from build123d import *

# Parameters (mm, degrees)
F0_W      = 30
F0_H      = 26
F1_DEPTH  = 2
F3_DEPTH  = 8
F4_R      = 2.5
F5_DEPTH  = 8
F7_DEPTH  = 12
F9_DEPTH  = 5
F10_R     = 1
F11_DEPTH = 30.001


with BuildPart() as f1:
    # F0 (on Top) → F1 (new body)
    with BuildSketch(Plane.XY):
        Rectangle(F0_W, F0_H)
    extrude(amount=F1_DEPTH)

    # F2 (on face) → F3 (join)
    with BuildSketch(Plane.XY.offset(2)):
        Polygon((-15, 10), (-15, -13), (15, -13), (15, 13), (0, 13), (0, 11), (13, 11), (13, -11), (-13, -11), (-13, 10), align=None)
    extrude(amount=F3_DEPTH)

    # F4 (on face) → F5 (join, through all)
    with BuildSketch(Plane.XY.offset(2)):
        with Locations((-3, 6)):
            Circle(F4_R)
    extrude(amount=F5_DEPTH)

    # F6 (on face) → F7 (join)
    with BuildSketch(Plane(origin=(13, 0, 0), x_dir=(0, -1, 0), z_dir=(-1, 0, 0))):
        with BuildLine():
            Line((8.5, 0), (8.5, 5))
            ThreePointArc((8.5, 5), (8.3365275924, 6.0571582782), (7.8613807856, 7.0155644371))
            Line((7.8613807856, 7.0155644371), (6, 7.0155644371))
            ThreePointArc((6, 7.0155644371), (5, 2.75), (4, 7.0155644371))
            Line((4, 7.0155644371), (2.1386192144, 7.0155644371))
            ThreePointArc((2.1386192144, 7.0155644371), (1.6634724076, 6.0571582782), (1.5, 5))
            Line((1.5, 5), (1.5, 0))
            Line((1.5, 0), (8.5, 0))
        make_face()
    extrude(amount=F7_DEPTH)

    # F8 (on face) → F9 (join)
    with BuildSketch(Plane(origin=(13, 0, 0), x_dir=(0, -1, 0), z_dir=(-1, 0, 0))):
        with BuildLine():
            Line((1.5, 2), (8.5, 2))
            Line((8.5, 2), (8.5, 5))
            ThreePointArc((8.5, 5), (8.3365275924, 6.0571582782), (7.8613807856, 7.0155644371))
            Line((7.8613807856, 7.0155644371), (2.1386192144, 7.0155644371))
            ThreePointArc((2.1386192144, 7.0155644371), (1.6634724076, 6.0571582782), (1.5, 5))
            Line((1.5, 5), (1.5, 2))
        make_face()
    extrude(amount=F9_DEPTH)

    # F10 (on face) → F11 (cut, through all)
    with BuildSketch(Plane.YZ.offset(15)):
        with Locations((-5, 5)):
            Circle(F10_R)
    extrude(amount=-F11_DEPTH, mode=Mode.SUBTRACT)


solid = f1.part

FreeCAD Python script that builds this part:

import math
import FreeCAD as App
import Part
import Sketcher
Q = App.Units.Quantity


def add_polygon(sketch, points):
    """Adds a closed chain of lines whose ends are joined by coincident constraints."""
    first, n = sketch.GeometryCount, len(points)
    for a, b in zip(points, points[1:] + points[:1]):
        sketch.addGeometry(Part.LineSegment(App.Vector(*a, 0), App.Vector(*b, 0)), False)
    for i in range(n):
        sketch.addConstraint(Sketcher.Constraint("Coincident", first + i, 2, first + (i + 1) % n, 1))

doc = App.newDocument("Part")
body = doc.addObject("PartDesign::Body", "Body")

sketch1 = doc.addObject("Sketcher::SketchObject", "Sketch")
body.addObject(sketch1)
sketch1.AttachmentSupport = (doc.XY_Plane, [""])
sketch1.MapMode = "FlatFace"
add_polygon(sketch1, [(-15, 13), (-15, -13), (15, -13), (15, 13)])
sketch1.addConstraint([
    Sketcher.Constraint("Vertical", 0),
    Sketcher.Constraint("Horizontal", 1),
    Sketcher.Constraint("Vertical", 2),
    Sketcher.Constraint("Horizontal", 3),
    Sketcher.Constraint("Symmetric", 0, 2, 2, 2, -1, 1),
    Sketcher.Constraint("DistanceX", 1, 1, 1, 2, Q("30 mm")),
    Sketcher.Constraint("DistanceY", 0, 2, 0, 1, Q("26 mm")),
])
pad1 = doc.addObject("PartDesign::Pad", "Pad")
body.addObject(pad1)
pad1.Profile = sketch1
pad1.Length = 2

sketch2 = doc.addObject("Sketcher::SketchObject", "Sketch001")
body.addObject(sketch2)
sketch2.AttachmentSupport = (doc.XY_Plane, [""])
sketch2.MapMode = "FlatFace"
sketch2.AttachmentOffset = App.Placement(App.Vector(0, 0, 2), App.Rotation())
add_polygon(sketch2, [(-15, 10), (-15, -13), (15, -13), (15, 13), (0, 13), (0, 11), (13, 11), (13, -11), (-13, -11), (-13, 10)])
sketch2.addConstraint([
    Sketcher.Constraint("Vertical", 0),
    Sketcher.Constraint("Horizontal", 1),
    Sketcher.Constraint("Vertical", 2),
    Sketcher.Constraint("Horizontal", 3),
    Sketcher.Constraint("Vertical", 4),
    Sketcher.Constraint("Horizontal", 5),
    Sketcher.Constraint("Vertical", 6),
    Sketcher.Constraint("Horizontal", 7),
    Sketcher.Constraint("Vertical", 8),
    Sketcher.Constraint("Horizontal", 9),
    Sketcher.Constraint("Symmetric", 0, 2, 2, 2, -1, 1),
    Sketcher.Constraint("Symmetric", 5, 2, 7, 2, -1, 1),
    Sketcher.Constraint("PointOnObject", 3, 2, -2),
    Sketcher.Constraint("Equal", 7, 2),
    Sketcher.Constraint("Equal", 9, 4),
    Sketcher.Constraint("DistanceX", 1, 1, 1, 2, Q("30 mm")),
    Sketcher.Constraint("DistanceX", 5, 1, 5, 2, Q("13 mm")),
    Sketcher.Constraint("DistanceY", 0, 2, 0, 1, Q("23 mm")),
])
pad2 = doc.addObject("PartDesign::Pad", "Pad001")
body.addObject(pad2)
pad2.Profile = sketch2
pad2.Length = 8

sketch3 = doc.addObject("Sketcher::SketchObject", "Sketch002")
body.addObject(sketch3)
sketch3.AttachmentSupport = (doc.XY_Plane, [""])
sketch3.MapMode = "FlatFace"
sketch3.AttachmentOffset = App.Placement(App.Vector(0, 0, 2), App.Rotation())
sketch3.addGeometry(Part.Circle(App.Vector(-3, 6, 0), App.Vector(0, 0, 1), 2.5), False)
sketch3.addConstraint([
    Sketcher.Constraint("Diameter", 0, Q("5 mm")),
    Sketcher.Constraint("DistanceX", 0, 3, -1, 1, Q("3 mm")),
    Sketcher.Constraint("DistanceY", -1, 1, 0, 3, Q("6 mm")),
])
pad3 = doc.addObject("PartDesign::Pad", "Pad002")
body.addObject(pad3)
pad3.Profile = sketch3
pad3.Length = 8

sketch4 = doc.addObject("Sketcher::SketchObject", "Sketch003")
body.addObject(sketch4)
sketch4.AttachmentSupport = (doc.YZ_Plane, [""])
sketch4.MapMode = "FlatFace"
sketch4.AttachmentOffset = App.Placement(App.Vector(0, 0, 13), App.Rotation())
sketch4.addGeometry([
    Part.LineSegment(App.Vector(-8.5, 0, 0), App.Vector(-8.5, 5, 0)),
    Part.ArcOfCircle(Part.Circle(App.Vector(-5, 5, 0), App.Vector(0, 0, 1), 3.5), math.radians(145), math.radians(180)),
    Part.LineSegment(App.Vector(-7.9, 7, 0), App.Vector(-6, 7, 0)),
    Part.ArcOfCircle(Part.Circle(App.Vector(-5, 5, 0), App.Vector(0, 0, 1), 2.2), math.radians(116), math.radians(424)),
    Part.LineSegment(App.Vector(-4, 7, 0), App.Vector(-2.1, 7, 0)),
    Part.ArcOfCircle(Part.Circle(App.Vector(-5, 5, 0), App.Vector(0, 0, 1), 3.5), math.radians(0), math.radians(35)),
    Part.LineSegment(App.Vector(-1.5, 5, 0), App.Vector(-1.5, 0, 0)),
    Part.LineSegment(App.Vector(-1.5, 0, 0), App.Vector(-8.5, 0, 0)),
], False)
sketch4.addConstraint([
    Sketcher.Constraint("Tangent", 0, 2, 1, 2),
    Sketcher.Constraint("Coincident", 1, 1, 2, 1),
    Sketcher.Constraint("Coincident", 2, 2, 3, 1),
    Sketcher.Constraint("Coincident", 3, 2, 4, 1),
    Sketcher.Constraint("Coincident", 4, 2, 5, 2),
    Sketcher.Constraint("Tangent", 5, 1, 6, 1),
    Sketcher.Constraint("Coincident", 6, 2, 7, 1),
    Sketcher.Constraint("Coincident", 7, 2, 0, 1),
    Sketcher.Constraint("Vertical", 0),
    Sketcher.Constraint("Horizontal", 2),
    Sketcher.Constraint("Horizontal", 4),
    Sketcher.Constraint("Vertical", 6),
    Sketcher.Constraint("Horizontal", 7),
    Sketcher.Constraint("Coincident", 3, 3, 1, 3),
    Sketcher.Constraint("Coincident", 5, 3, 1, 3),
    Sketcher.Constraint("Equal", 1, 5),
    Sketcher.Constraint("PointOnObject", 6, 2, -1),
    Sketcher.Constraint("Horizontal", 2, 2, 3, 2),
    Sketcher.Constraint("Radius", 1, Q("3.5 mm")),
    Sketcher.Constraint("DistanceY", 0, 1, 0, 2, Q("5 mm")),
    Sketcher.Constraint("Radius", 3, Q("2.25 mm")),
    Sketcher.Constraint("DistanceX", 1, 3, -1, 1, Q("5 mm")),
    Sketcher.Constraint("DistanceX", 2, 2, -1, 1, Q("6 mm")),
])
pad4 = doc.addObject("PartDesign::Pad", "Pad003")
body.addObject(pad4)
pad4.Profile = sketch4
pad4.Length = 12
pad4.Reversed = True

sketch5 = doc.addObject("Sketcher::SketchObject", "Sketch004")
body.addObject(sketch5)
sketch5.AttachmentSupport = (doc.YZ_Plane, [""])
sketch5.MapMode = "FlatFace"
sketch5.AttachmentOffset = App.Placement(App.Vector(0, 0, 13), App.Rotation())
sketch5.addGeometry([
    Part.LineSegment(App.Vector(-1.5, 2, 0), App.Vector(-8.5, 2, 0)),
    Part.LineSegment(App.Vector(-8.5, 2, 0), App.Vector(-8.5, 5, 0)),
    Part.ArcOfCircle(Part.Circle(App.Vector(-5, 5, 0), App.Vector(0, 0, 1), 3.5), math.radians(145), math.radians(180)),
    Part.LineSegment(App.Vector(-7.9, 7, 0), App.Vector(-2.1, 7, 0)),
    Part.ArcOfCircle(Part.Circle(App.Vector(-5, 5, 0), App.Vector(0, 0, 1), 3.5), math.radians(0), math.radians(35)),
    Part.LineSegment(App.Vector(-1.5, 5, 0), App.Vector(-1.5, 2, 0)),
], False)
sketch5.addConstraint([
    Sketcher.Constraint("Coincident", 0, 2, 1, 1),
    Sketcher.Constraint("Tangent", 1, 2, 2, 2),
    Sketcher.Constraint("Coincident", 2, 1, 3, 1),
    Sketcher.Constraint("Coincident", 3, 2, 4, 2),
    Sketcher.Constraint("Tangent", 4, 1, 5, 1),
    Sketcher.Constraint("Coincident", 5, 2, 0, 1),
    Sketcher.Constraint("Horizontal", 0),
    Sketcher.Constraint("Vertical", 1),
    Sketcher.Constraint("Horizontal", 3),
    Sketcher.Constraint("Vertical", 5),
    Sketcher.Constraint("Coincident", 4, 3, 2, 3),
    Sketcher.Constraint("Equal", 2, 4),
    Sketcher.Constraint("Radius", 2, Q("3.5 mm")),
    Sketcher.Constraint("DistanceY", 1, 1, 1, 2, Q("3 mm")),
    Sketcher.Constraint("DistanceX", 2, 3, -1, 1, Q("5 mm")),
    Sketcher.Constraint("DistanceY", -1, 1, 2, 3, Q("5 mm")),
    Sketcher.Constraint("DistanceX", 3, 1, 3, 2, Q("5.722762 mm")),
])
pad5 = doc.addObject("PartDesign::Pad", "Pad004")
body.addObject(pad5)
pad5.Profile = sketch5
pad5.Length = 5
pad5.Reversed = True

sketch6 = doc.addObject("Sketcher::SketchObject", "Sketch005")
body.addObject(sketch6)
sketch6.AttachmentSupport = (doc.YZ_Plane, [""])
sketch6.MapMode = "FlatFace"
sketch6.AttachmentOffset = App.Placement(App.Vector(0, 0, 15), App.Rotation())
sketch6.addGeometry(Part.Circle(App.Vector(-5, 5, 0), App.Vector(0, 0, 1), 1), False)
sketch6.addConstraint([
    Sketcher.Constraint("Diameter", 0, Q("2 mm")),
    Sketcher.Constraint("DistanceX", 0, 3, -1, 1, Q("5 mm")),
    Sketcher.Constraint("DistanceY", -1, 1, 0, 3, Q("5 mm")),
])
pocket1 = doc.addObject("PartDesign::Pocket", "Pocket")
body.addObject(pocket1)
pocket1.Profile = sketch6
pocket1.Type = "ThroughAll"

doc.recompute()
